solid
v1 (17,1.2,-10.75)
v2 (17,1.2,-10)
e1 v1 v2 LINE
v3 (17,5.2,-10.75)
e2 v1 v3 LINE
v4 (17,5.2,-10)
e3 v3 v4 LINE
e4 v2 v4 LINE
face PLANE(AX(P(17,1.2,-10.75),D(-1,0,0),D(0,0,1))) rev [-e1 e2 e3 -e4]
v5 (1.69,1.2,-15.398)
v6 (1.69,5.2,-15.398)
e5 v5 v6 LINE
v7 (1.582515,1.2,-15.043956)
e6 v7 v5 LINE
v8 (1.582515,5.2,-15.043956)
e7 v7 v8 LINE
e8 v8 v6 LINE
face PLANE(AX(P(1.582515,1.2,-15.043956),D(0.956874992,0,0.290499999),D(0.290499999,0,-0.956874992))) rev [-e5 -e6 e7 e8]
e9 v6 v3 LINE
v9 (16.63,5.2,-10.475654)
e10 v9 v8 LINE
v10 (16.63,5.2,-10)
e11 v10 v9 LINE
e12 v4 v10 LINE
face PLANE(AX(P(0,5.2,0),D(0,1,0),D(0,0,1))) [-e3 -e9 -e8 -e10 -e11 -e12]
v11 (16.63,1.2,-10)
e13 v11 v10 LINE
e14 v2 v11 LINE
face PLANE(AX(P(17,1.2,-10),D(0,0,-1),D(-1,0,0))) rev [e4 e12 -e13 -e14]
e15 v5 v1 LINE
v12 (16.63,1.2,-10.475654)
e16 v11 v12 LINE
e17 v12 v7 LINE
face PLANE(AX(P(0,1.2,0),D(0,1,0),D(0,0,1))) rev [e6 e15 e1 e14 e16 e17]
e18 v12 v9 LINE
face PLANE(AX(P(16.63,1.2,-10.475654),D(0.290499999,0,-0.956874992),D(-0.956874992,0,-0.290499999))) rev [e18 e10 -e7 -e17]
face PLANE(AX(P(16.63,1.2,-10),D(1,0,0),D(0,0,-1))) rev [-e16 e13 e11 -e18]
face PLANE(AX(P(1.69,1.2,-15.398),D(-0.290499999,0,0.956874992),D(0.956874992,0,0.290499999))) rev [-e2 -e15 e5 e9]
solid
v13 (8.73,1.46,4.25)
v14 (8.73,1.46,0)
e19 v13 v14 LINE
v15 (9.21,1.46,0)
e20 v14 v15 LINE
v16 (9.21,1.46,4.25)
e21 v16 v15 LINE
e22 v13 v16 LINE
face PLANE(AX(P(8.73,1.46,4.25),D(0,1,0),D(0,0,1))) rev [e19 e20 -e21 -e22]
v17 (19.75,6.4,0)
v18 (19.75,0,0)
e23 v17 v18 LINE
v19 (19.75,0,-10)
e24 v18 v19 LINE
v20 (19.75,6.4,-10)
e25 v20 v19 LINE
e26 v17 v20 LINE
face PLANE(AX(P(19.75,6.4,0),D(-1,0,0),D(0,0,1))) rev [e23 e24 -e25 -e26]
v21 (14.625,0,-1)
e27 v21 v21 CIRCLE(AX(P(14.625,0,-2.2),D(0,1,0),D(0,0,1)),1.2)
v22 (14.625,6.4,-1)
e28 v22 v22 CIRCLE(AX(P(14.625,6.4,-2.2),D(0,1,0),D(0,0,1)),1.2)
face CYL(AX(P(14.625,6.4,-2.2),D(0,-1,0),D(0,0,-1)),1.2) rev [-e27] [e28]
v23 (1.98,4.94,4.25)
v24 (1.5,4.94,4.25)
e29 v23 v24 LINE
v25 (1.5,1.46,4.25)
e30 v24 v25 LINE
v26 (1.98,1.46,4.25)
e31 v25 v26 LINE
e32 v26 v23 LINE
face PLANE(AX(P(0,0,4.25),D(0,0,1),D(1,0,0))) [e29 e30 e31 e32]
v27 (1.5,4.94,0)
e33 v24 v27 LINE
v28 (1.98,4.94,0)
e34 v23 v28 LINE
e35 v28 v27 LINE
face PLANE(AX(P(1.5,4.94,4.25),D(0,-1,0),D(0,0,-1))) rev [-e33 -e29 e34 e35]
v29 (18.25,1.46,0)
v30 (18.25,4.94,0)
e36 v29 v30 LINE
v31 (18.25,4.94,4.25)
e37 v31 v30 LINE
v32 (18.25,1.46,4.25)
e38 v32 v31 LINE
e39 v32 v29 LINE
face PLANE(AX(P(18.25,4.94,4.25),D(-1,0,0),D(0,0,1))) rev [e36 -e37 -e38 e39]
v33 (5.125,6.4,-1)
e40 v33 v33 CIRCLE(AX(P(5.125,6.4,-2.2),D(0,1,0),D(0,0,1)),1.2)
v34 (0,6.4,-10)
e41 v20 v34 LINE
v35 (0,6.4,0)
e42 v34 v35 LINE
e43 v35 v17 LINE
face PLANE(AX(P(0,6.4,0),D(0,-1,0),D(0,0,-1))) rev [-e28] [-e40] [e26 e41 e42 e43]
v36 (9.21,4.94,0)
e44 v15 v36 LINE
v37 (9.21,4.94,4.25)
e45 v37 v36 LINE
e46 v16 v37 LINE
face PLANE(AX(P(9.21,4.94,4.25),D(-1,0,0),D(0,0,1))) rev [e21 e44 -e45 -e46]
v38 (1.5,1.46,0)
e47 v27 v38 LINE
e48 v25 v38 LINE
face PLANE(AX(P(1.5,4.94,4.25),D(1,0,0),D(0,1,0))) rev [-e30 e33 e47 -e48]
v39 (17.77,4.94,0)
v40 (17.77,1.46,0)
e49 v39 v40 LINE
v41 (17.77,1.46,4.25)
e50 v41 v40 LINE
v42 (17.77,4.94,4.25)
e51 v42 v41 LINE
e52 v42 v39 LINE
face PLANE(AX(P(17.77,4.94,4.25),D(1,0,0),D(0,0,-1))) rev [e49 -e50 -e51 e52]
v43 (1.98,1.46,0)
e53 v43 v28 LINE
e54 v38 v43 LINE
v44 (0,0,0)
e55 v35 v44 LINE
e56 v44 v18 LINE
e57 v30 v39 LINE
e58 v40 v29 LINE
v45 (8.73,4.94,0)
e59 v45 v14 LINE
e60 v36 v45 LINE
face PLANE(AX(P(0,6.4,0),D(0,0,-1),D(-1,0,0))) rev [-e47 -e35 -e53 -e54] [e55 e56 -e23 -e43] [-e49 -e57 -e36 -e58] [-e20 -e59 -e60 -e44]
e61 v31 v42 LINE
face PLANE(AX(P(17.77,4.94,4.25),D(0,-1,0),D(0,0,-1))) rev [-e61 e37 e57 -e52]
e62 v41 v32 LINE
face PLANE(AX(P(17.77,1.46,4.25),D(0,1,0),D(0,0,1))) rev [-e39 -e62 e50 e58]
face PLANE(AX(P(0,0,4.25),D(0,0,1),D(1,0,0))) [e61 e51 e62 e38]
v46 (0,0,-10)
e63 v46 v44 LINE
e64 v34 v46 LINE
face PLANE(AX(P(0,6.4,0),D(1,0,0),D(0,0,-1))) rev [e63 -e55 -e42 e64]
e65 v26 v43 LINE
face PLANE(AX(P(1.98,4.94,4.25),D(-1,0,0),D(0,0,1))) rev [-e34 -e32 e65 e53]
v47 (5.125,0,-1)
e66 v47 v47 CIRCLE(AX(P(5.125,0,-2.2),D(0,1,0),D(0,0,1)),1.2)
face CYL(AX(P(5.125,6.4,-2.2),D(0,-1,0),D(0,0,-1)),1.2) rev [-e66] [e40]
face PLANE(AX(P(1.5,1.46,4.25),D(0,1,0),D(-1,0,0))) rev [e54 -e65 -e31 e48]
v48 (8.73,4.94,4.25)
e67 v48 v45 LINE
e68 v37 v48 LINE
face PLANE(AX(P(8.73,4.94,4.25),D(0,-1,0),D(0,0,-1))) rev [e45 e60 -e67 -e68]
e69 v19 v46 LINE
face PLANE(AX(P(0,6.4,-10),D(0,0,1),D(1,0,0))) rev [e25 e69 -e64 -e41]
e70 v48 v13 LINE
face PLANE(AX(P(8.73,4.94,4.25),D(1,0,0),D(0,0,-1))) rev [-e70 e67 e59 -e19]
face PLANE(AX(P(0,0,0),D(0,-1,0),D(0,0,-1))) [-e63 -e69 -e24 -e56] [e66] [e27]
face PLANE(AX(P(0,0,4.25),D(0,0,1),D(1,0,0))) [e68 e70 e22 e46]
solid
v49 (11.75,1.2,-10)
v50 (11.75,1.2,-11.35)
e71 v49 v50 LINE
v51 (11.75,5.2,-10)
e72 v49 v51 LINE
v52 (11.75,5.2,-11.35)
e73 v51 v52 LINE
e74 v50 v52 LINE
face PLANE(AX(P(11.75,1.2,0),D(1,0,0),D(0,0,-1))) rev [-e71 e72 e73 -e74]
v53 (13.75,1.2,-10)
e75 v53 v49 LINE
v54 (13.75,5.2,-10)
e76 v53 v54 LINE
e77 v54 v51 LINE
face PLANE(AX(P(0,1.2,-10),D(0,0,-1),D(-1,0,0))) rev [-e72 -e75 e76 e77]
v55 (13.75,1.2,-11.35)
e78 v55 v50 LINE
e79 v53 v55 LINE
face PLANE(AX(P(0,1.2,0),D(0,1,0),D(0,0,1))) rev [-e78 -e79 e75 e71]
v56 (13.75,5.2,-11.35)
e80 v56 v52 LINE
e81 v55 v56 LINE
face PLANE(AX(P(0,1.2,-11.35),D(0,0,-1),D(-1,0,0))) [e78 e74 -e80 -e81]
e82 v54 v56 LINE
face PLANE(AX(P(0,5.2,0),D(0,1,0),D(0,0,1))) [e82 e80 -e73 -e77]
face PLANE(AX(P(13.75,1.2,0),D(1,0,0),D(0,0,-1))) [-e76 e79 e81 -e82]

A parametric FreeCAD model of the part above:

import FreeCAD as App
import Part
import Sketcher
from FreeCAD import Vector

doc = App.newDocument("Part")
params = doc.addObject("Spreadsheet::Sheet", "Params")
for row, (alias, value) in enumerate([
    ("sketch1_diameter", "2.4 mm"),
    ("sketch1_height", "10 mm"),
    ("sketch1_width", "19.75 mm"),
    ("pad1_length", "6.4 mm"),
    ("sketch2_width", "0.48 mm"),
    ("sketch2_height", "3.48 mm"),
    ("pad2_length", "4.25 mm"),
    ("sketch3_width", "2 mm"),
    ("sketch3_height", "1.35 mm"),
    ("pad3_length", "2 mm"),
    ("pad3_length2", "2 mm"),
    ("sketch4_length", "16 mm"),
    ("sketch4_width", "0.37 mm"),
    ("sketch4_height", "0.75 mm"),
    ("sketch4_length2", "0.37 mm"),
    ("pad4_length", "2 mm"),
    ("pad4_length2", "2 mm"),
], start=1):
    params.set(f"A{row}", alias)
    params.set(f"B{row}", "=" + value)
    params.setAlias(f"B{row}", alias)

body = doc.addObject("PartDesign::Body", "Body")

# Sketch on XZ plane
sketch1 = body.newObject("Sketcher::SketchObject", "Sketch")
sketch1.AttachmentSupport = (doc.getObject("XZ_Plane"), [""])
sketch1.MapMode = "FlatFace"
sketch1.addGeometry(Part.LineSegment(Vector(0, -10, 0), Vector(0, 0, 0)), False)
sketch1.addGeometry(Part.LineSegment(Vector(0, 0, 0), Vector(19.8, 0, 0)), False)
sketch1.addGeometry(Part.LineSegment(Vector(19.8, 0, 0), Vector(19.8, -10, 0)), False)
sketch1.addGeometry(Part.LineSegment(Vector(19.8, -10, 0), Vector(0, -10, 0)), False)
sketch1.addGeometry(Part.Circle(Vector(5.1, -2.2, 0), Vector(0, 0, 1), 1.2), False)
sketch1.addGeometry(Part.Circle(Vector(14.6, -2.2, 0), Vector(0, 0, 1), 1.2), False)
sketch1.addConstraint(Sketcher.Constraint("Coincident", 0, 2, 1, 1))
sketch1.addConstraint(Sketcher.Constraint("Coincident", 1, 2, 2, 1))
sketch1.addConstraint(Sketcher.Constraint("Coincident", 2, 2, 3, 1))
sketch1.addConstraint(Sketcher.Constraint("Coincident", 3, 2, 0, 1))
sketch1.addConstraint(Sketcher.Constraint("Vertical", 0))
sketch1.addConstraint(Sketcher.Constraint("Horizontal", 1))
sketch1.addConstraint(Sketcher.Constraint("Vertical", 2))
sketch1.addConstraint(Sketcher.Constraint("Horizontal", 3))
sketch1.addConstraint(Sketcher.Constraint("Coincident", 0, 2, -1, 1))
sketch1.addConstraint(Sketcher.Constraint("Equal", 4, 5))
sketch1.addConstraint(Sketcher.Constraint("Horizontal", 4, 3, 5, 3))
sketch1.addConstraint(Sketcher.Constraint("Diameter", 4, 2.4))
sketch1.addConstraint(Sketcher.Constraint("DistanceY", 0, 1, 0, 2, 10.0))
sketch1.addConstraint(Sketcher.Constraint("DistanceX", 1, 1, 1, 2, 19.75))
sketch1.addConstraint(Sketcher.Constraint("DistanceY", 4, 3, -1, 1, 2.2))
sketch1.addConstraint(Sketcher.Constraint("DistanceX", 4, 3, 5, 3, 9.5))
sketch1.addConstraint(Sketcher.Constraint("DistanceX", -1, 1, 4, 3, 5.125))
sketch1.setExpression("Constraints[11]", "Params.sketch1_diameter")
sketch1.setExpression("Constraints[12]", "Params.sketch1_height")
sketch1.setExpression("Constraints[13]", "Params.sketch1_width")
pad1 = body.newObject("PartDesign::Pad", "Pad")
pad1.Profile = sketch1
pad1.setExpression("Length", "Params.pad1_length")
pad1.Reversed = True

# Sketch on XY plane
sketch2 = body.newObject("Sketcher::SketchObject", "Sketch001")
sketch2.AttachmentSupport = (doc.getObject("XY_Plane"), [""])
sketch2.MapMode = "FlatFace"
sketch2.addGeometry(Part.LineSegment(Vector(1.5, 4.94, 0), Vector(1.5, 1.46, 0)), False)
sketch2.addGeometry(Part.LineSegment(Vector(1.5, 1.46, 0), Vector(1.98, 1.46, 0)), False)
sketch2.addGeometry(Part.LineSegment(Vector(1.98, 1.46, 0), Vector(1.98, 4.94, 0)), False)
sketch2.addGeometry(Part.LineSegment(Vector(1.98, 4.94, 0), Vector(1.5, 4.94, 0)), False)
sketch2.addGeometry(Part.LineSegment(Vector(8.73, 4.94, 0), Vector(8.73, 1.46, 0)), False)
sketch2.addGeometry(Part.LineSegment(Vector(8.73, 1.46, 0), Vector(9.21, 1.46, 0)), False)
sketch2.addGeometry(Part.LineSegment(Vector(9.21, 1.46, 0), Vector(9.21, 4.94, 0)), False)
sketch2.addGeometry(Part.LineSegment(Vector(9.21, 4.94, 0), Vector(8.73, 4.94, 0)), False)
sketch2.addGeometry(Part.LineSegment(Vector(17.77, 4.94, 0), Vector(17.77, 1.46, 0)), False)
sketch2.addGeometry(Part.LineSegment(Vector(17.77, 1.46, 0), Vector(18.25, 1.46, 0)), False)
sketch2.addGeometry(Part.LineSegment(Vector(18.25, 1.46, 0), Vector(18.25, 4.94, 0)), False)
sketch2.addGeometry(Part.LineSegment(Vector(18.25, 4.94, 0), Vector(17.77, 4.94, 0)), False)
sketch2.addConstraint(Sketcher.Constraint("Coincident", 0, 2, 1, 1))
sketch2.addConstraint(Sketcher.Constraint("Coincident", 1, 2, 2, 1))
sketch2.addConstraint(Sketcher.Constraint("Coincident", 2, 2, 3, 1))
sketch2.addConstraint(Sketcher.Constraint("Coincident", 3, 2, 0, 1))
sketch2.addConstraint(Sketcher.Constraint("Coincident", 4, 2, 5, 1))
sketch2.addConstraint(Sketcher.Constraint("Coincident", 5, 2, 6, 1))
sketch2.addConstraint(Sketcher.Constraint("Coincident", 6, 2, 7, 1))
sketch2.addConstraint(Sketcher.Constraint("Coincident", 7, 2, 4, 1))
sketch2.addConstraint(Sketcher.Constraint("Coincident", 8, 2, 9, 1))
sketch2.addConstraint(Sketcher.Constraint("Coincident", 9, 2, 10, 1))
sketch2.addConstraint(Sketcher.Constraint("Coincident", 10, 2, 11, 1))
sketch2.addConstraint(Sketcher.Constraint("Coincident", 11, 2, 8, 1))
sketch2.addConstraint(Sketcher.Constraint("Vertical", 0))
sketch2.addConstraint(Sketcher.Constraint("Horizontal", 1))
sketch2.addConstraint(Sketcher.Constraint("Vertical", 2))
sketch2.addConstraint(Sketcher.Constraint("Horizontal", 3))
sketch2.addConstraint(Sketcher.Constraint("Vertical", 4))
sketch2.addConstraint(Sketcher.Constraint("Horizontal", 5))
sketch2.addConstraint(Sketcher.Constraint("Vertical", 6))
sketch2.addConstraint(Sketcher.Constraint("Horizontal", 7))
sketch2.addConstraint(Sketcher.Constraint("Vertical", 8))
sketch2.addConstraint(Sketcher.Constraint("Horizontal", 9))
sketch2.addConstraint(Sketcher.Constraint("Vertical", 10))
sketch2.addConstraint(Sketcher.Constraint("Horizontal", 11))
sketch2.addConstraint(Sketcher.Constraint("Horizontal", 1, 2, 4, 2))
sketch2.addConstraint(Sketcher.Constraint("Horizontal", 3, 2, 6, 2))
sketch2.addConstraint(Sketcher.Constraint("Horizontal", 5, 2, 8, 2))
sketch2.addConstraint(Sketcher.Constraint("Horizontal", 7, 2, 10, 2))
sketch2.addConstraint(Sketcher.Constraint("Equal", 3, 5))
sketch2.addConstraint(Sketcher.Constraint("Equal", 7, 9))
sketch2.addConstraint(Sketcher.Constraint("DistanceX", 1, 1, 1, 2, 0.48))
sketch2.addConstraint(Sketcher.Constraint("DistanceY", 0, 2, 0, 1, 3.48))
sketch2.addConstraint(Sketcher.Constraint("DistanceX", -1, 1, 0, 2, 1.5))
sketch2.addConstraint(Sketcher.Constraint("DistanceY", -1, 1, 0, 2, 1.46))
sketch2.addConstraint(Sketcher.Constraint("DistanceX", -1, 1, 4, 2, 8.73))
sketch2.addConstraint(Sketcher.Constraint("DistanceX", -1, 1, 8, 2, 17.77))
sketch2.setExpression("Constraints[30]", "Params.sketch2_width")
sketch2.setExpression("Constraints[31]", "Params.sketch2_height")
pad2 = body.newObject("PartDesign::Pad", "Pad001")
pad2.Profile = sketch2
pad2.setExpression("Length", "Params.pad2_length")
body2 = doc.addObject("PartDesign::Body", "Body001")

# Sketch on XZ plane
sketch3 = body2.newObject("Sketcher::SketchObject", "Sketch002")
sketch3.AttachmentSupport = (doc.getObject("XZ_Plane001"), [""])
sketch3.MapMode = "FlatFace"
sketch3.AttachmentOffset = App.Placement(Vector(0, 0, -3.2), App.Rotation())
sketch3.addGeometry(Part.LineSegment(Vector(11.8, -11.3, 0), Vector(11.8, -10, 0)), False)
sketch3.addGeometry(Part.LineSegment(Vector(11.8, -10, 0), Vector(13.8, -10, 0)), False)
sketch3.addGeometry(Part.LineSegment(Vector(13.8, -10, 0), Vector(13.8, -11.3, 0)), False)
sketch3.addGeometry(Part.LineSegment(Vector(13.8, -11.3, 0), Vector(11.8, -11.3, 0)), False)
sketch3.addConstraint(Sketcher.Constraint("Coincident", 0, 2, 1, 1))
sketch3.addConstraint(Sketcher.Constraint("Coincident", 1, 2, 2, 1))
sketch3.addConstraint(Sketcher.Constraint("Coincident", 2, 2, 3, 1))
sketch3.addConstraint(Sketcher.Constraint("Coincident", 3, 2, 0, 1))
sketch3.addConstraint(Sketcher.Constraint("Vertical", 0))
sketch3.addConstraint(Sketcher.Constraint("Horizontal", 1))
sketch3.addConstraint(Sketcher.Constraint("Vertical", 2))
sketch3.addConstraint(Sketcher.Constraint("Horizontal", 3))
sketch3.addConstraint(Sketcher.Constraint("DistanceX", 1, 1, 1, 2, 2.0))
sketch3.addConstraint(Sketcher.Constraint("DistanceY", 0, 2, -1, 1, 10.0))
sketch3.addConstraint(Sketcher.Constraint("DistanceY", 0, 1, 0, 2, 1.35))
sketch3.addConstraint(Sketcher.Constraint("DistanceX", -1, 1, 0, 2, 11.75))
sketch3.setExpression("Constraints[8]", "Params.sketch3_width")
sketch3.setExpression("Constraints[10]", "Params.sketch3_height")
pad3 = body2.newObject("PartDesign::Pad", "Pad002")
pad3.Profile = sketch3
pad3.Type = "TwoLengths"
pad3.setExpression("Length", "Params.pad3_length")
pad3.setExpression("Length2", "Params.pad3_length2")
pad3.Reversed = True
body3 = doc.addObject("PartDesign::Body", "Body002")

# Sketch on XZ plane
sketch4 = body3.newObject("Sketcher::SketchObject", "Sketch003")
sketch4.AttachmentSupport = (doc.getObject("XZ_Plane002"), [""])
sketch4.MapMode = "FlatFace"
sketch4.AttachmentOffset = App.Placement(Vector(0, 0, -3.2), App.Rotation())
sketch4.addGeometry(Part.LineSegment(Vector(1.58, -15.04, 0), Vector(16.63, -10.48, 0)), False)
sketch4.addGeometry(Part.LineSegment(Vector(16.63, -10.48, 0), Vector(16.63, -10, 0)), False)
sketch4.addGeometry(Part.LineSegment(Vector(16.63, -10, 0), Vector(17, -10, 0)), False)
sketch4.addGeometry(Part.LineSegment(Vector(17, -10, 0), Vector(17, -10.75, 0)), False)
sketch4.addGeometry(Part.LineSegment(Vector(17, -10.75, 0), Vector(1.69, -15.4, 0)), False)
sketch4.addGeometry(Part.LineSegment(Vector(1.69, -15.4, 0), Vector(1.58, -15.04, 0)), False)
sketch4.addConstraint(Sketcher.Constraint("Coincident", 0, 2, 1, 1))
sketch4.addConstraint(Sketcher.Constraint("Coincident", 1, 2, 2, 1))
sketch4.addConstraint(Sketcher.Constraint("Coincident", 2, 2, 3, 1))
sketch4.addConstraint(Sketcher.Constraint("Coincident", 3, 2, 4, 1))
sketch4.addConstraint(Sketcher.Constraint("Coincident", 4, 2, 5, 1))
sketch4.addConstraint(Sketcher.Constraint("Coincident", 5, 2, 0, 1))
sketch4.addConstraint(Sketcher.Constraint("Vertical", 1))
sketch4.addConstraint(Sketcher.Constraint("Horizontal", 2))
sketch4.addConstraint(Sketcher.Constraint("Vertical", 3))
sketch4.addConstraint(Sketcher.Constraint("Parallel", 0, 4))
sketch4.addConstraint(Sketcher.Constraint("Perpendicular", 4, 5))
sketch4.addConstraint(Sketcher.Constraint("Distance", 4, 16.0))
sketch4.addConstraint(Sketcher.Constraint("DistanceY", 1, 2, -1, 1, 10.0))
sketch4.addConstraint(Sketcher.Constraint("DistanceX", -1, 1, 2, 2, 17.0))
sketch4.addConstraint(Sketcher.Constraint("DistanceX", 2, 1, 2, 2, 0.37))
sketch4.addConstraint(Sketcher.Constraint("DistanceY", 3, 2, 3, 1, 0.75))
sketch4.addConstraint(Sketcher.Constraint("Distance", 5, 0.37))
sketch4.addConstraint(Sketcher.Constraint("DistanceX", -1, 1, 4, 2, 1.69))
sketch4.setExpression("Constraints[11]", "Params.sketch4_length")
sketch4.setExpression("Constraints[14]", "Params.sketch4_width")
sketch4.setExpression("Constraints[15]", "Params.sketch4_height")
sketch4.setExpression("Constraints[16]", "Params.sketch4_length2")
pad4 = body3.newObject("PartDesign::Pad", "Pad003")
pad4.Profile = sketch4
pad4.Type = "TwoLengths"
pad4.setExpression("Length", "Params.pad4_length")
pad4.setExpression("Length2", "Params.pad4_length2")
pad4.Reversed = True

doc.recompute()
